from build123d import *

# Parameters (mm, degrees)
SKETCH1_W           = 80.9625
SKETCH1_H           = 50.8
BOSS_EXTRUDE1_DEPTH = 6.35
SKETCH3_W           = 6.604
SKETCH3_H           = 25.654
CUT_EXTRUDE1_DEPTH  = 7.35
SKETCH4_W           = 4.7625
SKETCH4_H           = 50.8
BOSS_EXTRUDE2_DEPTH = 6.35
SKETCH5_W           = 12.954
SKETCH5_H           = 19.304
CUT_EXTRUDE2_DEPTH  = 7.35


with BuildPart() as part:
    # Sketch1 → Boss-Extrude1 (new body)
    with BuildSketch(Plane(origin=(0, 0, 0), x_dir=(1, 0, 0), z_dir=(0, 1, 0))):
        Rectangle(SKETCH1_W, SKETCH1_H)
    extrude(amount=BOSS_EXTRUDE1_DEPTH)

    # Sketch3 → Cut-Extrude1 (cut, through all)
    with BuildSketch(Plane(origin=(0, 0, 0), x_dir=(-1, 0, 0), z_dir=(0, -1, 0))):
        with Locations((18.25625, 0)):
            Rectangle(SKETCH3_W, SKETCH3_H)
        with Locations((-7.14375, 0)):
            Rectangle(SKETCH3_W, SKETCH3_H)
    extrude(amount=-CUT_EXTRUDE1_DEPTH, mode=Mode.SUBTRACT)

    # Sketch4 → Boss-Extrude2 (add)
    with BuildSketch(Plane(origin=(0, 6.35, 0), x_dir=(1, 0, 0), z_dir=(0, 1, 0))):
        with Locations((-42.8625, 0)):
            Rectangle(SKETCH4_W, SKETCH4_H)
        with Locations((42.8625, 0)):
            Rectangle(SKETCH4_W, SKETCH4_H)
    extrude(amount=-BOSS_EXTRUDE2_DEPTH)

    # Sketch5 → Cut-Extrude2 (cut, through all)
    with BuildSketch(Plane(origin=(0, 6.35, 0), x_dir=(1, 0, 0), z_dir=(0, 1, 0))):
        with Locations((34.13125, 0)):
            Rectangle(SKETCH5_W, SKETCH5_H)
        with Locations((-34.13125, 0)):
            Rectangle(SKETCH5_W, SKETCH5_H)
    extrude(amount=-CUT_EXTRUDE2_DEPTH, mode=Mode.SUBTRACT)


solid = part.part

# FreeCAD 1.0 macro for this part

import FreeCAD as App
import Part
import Sketcher
from FreeCAD import Vector
Q = App.Units.Quantity


def add_polygon(sketch, points):
    """Adds a closed chain of lines whose ends are joined by coincident constraints."""
    first, n = sketch.GeometryCount, len(points)
    for a, b in zip(points, points[1:] + points[:1]):
        sketch.addGeometry(Part.LineSegment(App.Vector(*a, 0), App.Vector(*b, 0)), False)
    for i in range(n):
        sketch.addConstraint(Sketcher.Constraint("Coincident", first + i, 2, first + (i + 1) % n, 1))

doc = App.newDocument("Part")
body = doc.addObject("PartDesign::Body", "Body")

sketch1 = doc.addObject("Sketcher::SketchObject", "Sketch")
body.addObject(sketch1)
sketch1.AttachmentSupport = (doc.XZ_Plane, [""])
sketch1.MapMode = "FlatFace"
add_polygon(sketch1, [(-40, -25), (-40, 25), (40, 25), (40, -25)])
sketch1.addConstraint(Sketcher.Constraint("Vertical", 0))
sketch1.addConstraint(Sketcher.Constraint("Horizontal", 1))
sketch1.addConstraint(Sketcher.Constraint("Vertical", 2))
sketch1.addConstraint(Sketcher.Constraint("Horizontal", 3))
sketch1.addConstraint(Sketcher.Constraint("Symmetric", 0, 2, 2, 2, -1, 1))
sketch1.addConstraint(Sketcher.Constraint("DistanceY", 0, 1, 0, 2, Q("2 in")))
sketch1.addConstraint(Sketcher.Constraint("DistanceX", 1, 1, 1, 2, Q("3.1875 in")))
pad1 = doc.addObject("PartDesign::Pad", "Pad")
body.addObject(pad1)
pad1.Profile = sketch1
pad1.Length = Q("0.25 in")
pad1.Reversed = True

sketch2 = doc.addObject("Sketcher::SketchObject", "Sketch001")
body.addObject(sketch2)
sketch2.AttachmentSupport = (doc.XZ_Plane, [""])
sketch2.MapMode = "FlatFace"
add_polygon(sketch2, [(-15, -13), (-15, 13), (-22, 13), (-22, -13)])
add_polygon(sketch2, [(10, -13), (10, 13), (4, 13), (4, -13)])
sketch2.addConstraint(Sketcher.Constraint("Vertical", 0))
sketch2.addConstraint(Sketcher.Constraint("Horizontal", 1))
sketch2.addConstraint(Sketcher.Constraint("Vertical", 2))
sketch2.addConstraint(Sketcher.Constraint("Horizontal", 3))
sketch2.addConstraint(Sketcher.Constraint("Vertical", 4))
sketch2.addConstraint(Sketcher.Constraint("Horizontal", 5))
sketch2.addConstraint(Sketcher.Constraint("Vertical", 6))
sketch2.addConstraint(Sketcher.Constraint("Horizontal", 7))
sketch2.addConstraint(Sketcher.Constraint("Horizontal", 1, 2, 4, 2))
sketch2.addConstraint(Sketcher.Constraint("Horizontal", 3, 2, 6, 2))
sketch2.addConstraint(Sketcher.Constraint("Equal", 3, 5))
sketch2.addConstraint(Sketcher.Constraint("DistanceX", 0, 2, 4, 2, Q("1 in")))
sketch2.addConstraint(Sketcher.Constraint("DistanceX", 1, 2, 1, 1, Q("0.26 in")))
sketch2.addConstraint(Sketcher.Constraint("DistanceY", 0, 1, 0, 2, Q("1.01 in")))
sketch2.addConstraint(Sketcher.Constraint("DistanceY", -1, 1, 0, 2, Q("0.505 in")))
sketch2.addConstraint(Sketcher.Constraint("DistanceX", 0, 2, -1, 1, 14.95425))
pocket1 = doc.addObject("PartDesign::Pocket", "Pocket")
body.addObject(pocket1)
pocket1.Profile = sketch2
pocket1.Type = "ThroughAll"

sketch3 = doc.addObject("Sketcher::SketchObject", "Sketch002")
body.addObject(sketch3)
sketch3.AttachmentSupport = (doc.XZ_Plane, [""])
sketch3.MapMode = "FlatFace"
sketch3.AttachmentOffset = App.Placement(Vector(0, 0, -0.25 * 25.4), App.Rotation())
add_polygon(sketch3, [(-45.2, -25.4), (-45.2, 25.4), (-40.5, 25.4), (-40.5, -25.4)])
add_polygon(sketch3, [(40.5, -25.4), (40.5, 25.4), (45.2, 25.4), (45.2, -25.4)])
sketch3.addConstraint(Sketcher.Constraint("Vertical", 0))
sketch3.addConstraint(Sketcher.Constraint("Horizontal", 1))
sketch3.addConstraint(Sketcher.Constraint("Vertical", 2))
sketch3.addConstraint(Sketcher.Constraint("Horizontal", 3))
sketch3.addConstraint(Sketcher.Constraint("Vertical", 4))
sketch3.addConstraint(Sketcher.Constraint("Horizontal", 5))
sketch3.addConstraint(Sketcher.Constraint("Vertical", 6))
sketch3.addConstraint(Sketcher.Constraint("Horizontal", 7))
sketch3.addConstraint(Sketcher.Constraint("Symmetric", 2, 2, 4, 2, -1, 1))
sketch3.addConstraint(Sketcher.Constraint("Symmetric", 0, 2, 6, 2, -1, 1))
sketch3.addConstraint(Sketcher.Constraint("Horizontal", 1, 2, 4, 2))
sketch3.addConstraint(Sketcher.Constraint("DistanceY", 0, 1, 0, 2, Q("2 in")))
sketch3.addConstraint(Sketcher.Constraint("DistanceX", 1, 1, 1, 2, Q("0.1875 in")))
sketch3.addConstraint(Sketcher.Constraint("DistanceX", 0, 2, -1, 1, Q("1.78125 in")))
pad2 = doc.addObject("PartDesign::Pad", "Pad001")
body.addObject(pad2)
pad2.Profile = sketch3
pad2.Length = Q("0.25 in")

sketch4 = doc.addObject("Sketcher::SketchObject", "Sketch003")
body.addObject(sketch4)
sketch4.AttachmentSupport = (doc.XZ_Plane, [""])
sketch4.MapMode = "FlatFace"
sketch4.AttachmentOffset = App.Placement(Vector(0, 0, -0.25 * 25.4), App.Rotation())
add_polygon(sketch4, [(28, -10), (28, 10), (41, 10), (41, -10)])
add_polygon(sketch4, [(-41, -10), (-41, 10), (-28, 10), (-28, -10)])
sketch4.addConstraint(Sketcher.Constraint("Vertical", 0))
sketch4.addConstraint(Sketcher.Constraint("Horizontal", 1))
sketch4.addConstraint(Sketcher.Constraint("Vertical", 2))
sketch4.addConstraint(Sketcher.Constraint("Horizontal", 3))
sketch4.addConstraint(Sketcher.Constraint("Vertical", 4))
sketch4.addConstraint(Sketcher.Constraint("Horizontal", 5))
sketch4.addConstraint(Sketcher.Constraint("Vertical", 6))
sketch4.addConstraint(Sketcher.Constraint("Horizontal", 7))
sketch4.addConstraint(Sketcher.Constraint("Symmetric", 2, 2, 4, 2, -1, 1))
sketch4.addConstraint(Sketcher.Constraint("Symmetric", 0, 2, 6, 2, -1, 1))
sketch4.addConstraint(Sketcher.Constraint("Horizontal", 1, 2, 4, 2))
sketch4.addConstraint(Sketcher.Constraint("DistanceX", 1, 1, 1, 2, Q("0.51 in")))
sketch4.addConstraint(Sketcher.Constraint("DistanceY", 0, 1, 0, 2, Q("0.76 in")))
sketch4.addConstraint(Sketcher.Constraint("DistanceX", 4, 2, 0, 2, Q("2.6875 in")))
pocket2 = doc.addObject("PartDesign::Pocket", "Pocket001")
body.addObject(pocket2)
pocket2.Profile = sketch4
pocket2.Type = "ThroughAll"
pocket2.Reversed = True

doc.recompute()
